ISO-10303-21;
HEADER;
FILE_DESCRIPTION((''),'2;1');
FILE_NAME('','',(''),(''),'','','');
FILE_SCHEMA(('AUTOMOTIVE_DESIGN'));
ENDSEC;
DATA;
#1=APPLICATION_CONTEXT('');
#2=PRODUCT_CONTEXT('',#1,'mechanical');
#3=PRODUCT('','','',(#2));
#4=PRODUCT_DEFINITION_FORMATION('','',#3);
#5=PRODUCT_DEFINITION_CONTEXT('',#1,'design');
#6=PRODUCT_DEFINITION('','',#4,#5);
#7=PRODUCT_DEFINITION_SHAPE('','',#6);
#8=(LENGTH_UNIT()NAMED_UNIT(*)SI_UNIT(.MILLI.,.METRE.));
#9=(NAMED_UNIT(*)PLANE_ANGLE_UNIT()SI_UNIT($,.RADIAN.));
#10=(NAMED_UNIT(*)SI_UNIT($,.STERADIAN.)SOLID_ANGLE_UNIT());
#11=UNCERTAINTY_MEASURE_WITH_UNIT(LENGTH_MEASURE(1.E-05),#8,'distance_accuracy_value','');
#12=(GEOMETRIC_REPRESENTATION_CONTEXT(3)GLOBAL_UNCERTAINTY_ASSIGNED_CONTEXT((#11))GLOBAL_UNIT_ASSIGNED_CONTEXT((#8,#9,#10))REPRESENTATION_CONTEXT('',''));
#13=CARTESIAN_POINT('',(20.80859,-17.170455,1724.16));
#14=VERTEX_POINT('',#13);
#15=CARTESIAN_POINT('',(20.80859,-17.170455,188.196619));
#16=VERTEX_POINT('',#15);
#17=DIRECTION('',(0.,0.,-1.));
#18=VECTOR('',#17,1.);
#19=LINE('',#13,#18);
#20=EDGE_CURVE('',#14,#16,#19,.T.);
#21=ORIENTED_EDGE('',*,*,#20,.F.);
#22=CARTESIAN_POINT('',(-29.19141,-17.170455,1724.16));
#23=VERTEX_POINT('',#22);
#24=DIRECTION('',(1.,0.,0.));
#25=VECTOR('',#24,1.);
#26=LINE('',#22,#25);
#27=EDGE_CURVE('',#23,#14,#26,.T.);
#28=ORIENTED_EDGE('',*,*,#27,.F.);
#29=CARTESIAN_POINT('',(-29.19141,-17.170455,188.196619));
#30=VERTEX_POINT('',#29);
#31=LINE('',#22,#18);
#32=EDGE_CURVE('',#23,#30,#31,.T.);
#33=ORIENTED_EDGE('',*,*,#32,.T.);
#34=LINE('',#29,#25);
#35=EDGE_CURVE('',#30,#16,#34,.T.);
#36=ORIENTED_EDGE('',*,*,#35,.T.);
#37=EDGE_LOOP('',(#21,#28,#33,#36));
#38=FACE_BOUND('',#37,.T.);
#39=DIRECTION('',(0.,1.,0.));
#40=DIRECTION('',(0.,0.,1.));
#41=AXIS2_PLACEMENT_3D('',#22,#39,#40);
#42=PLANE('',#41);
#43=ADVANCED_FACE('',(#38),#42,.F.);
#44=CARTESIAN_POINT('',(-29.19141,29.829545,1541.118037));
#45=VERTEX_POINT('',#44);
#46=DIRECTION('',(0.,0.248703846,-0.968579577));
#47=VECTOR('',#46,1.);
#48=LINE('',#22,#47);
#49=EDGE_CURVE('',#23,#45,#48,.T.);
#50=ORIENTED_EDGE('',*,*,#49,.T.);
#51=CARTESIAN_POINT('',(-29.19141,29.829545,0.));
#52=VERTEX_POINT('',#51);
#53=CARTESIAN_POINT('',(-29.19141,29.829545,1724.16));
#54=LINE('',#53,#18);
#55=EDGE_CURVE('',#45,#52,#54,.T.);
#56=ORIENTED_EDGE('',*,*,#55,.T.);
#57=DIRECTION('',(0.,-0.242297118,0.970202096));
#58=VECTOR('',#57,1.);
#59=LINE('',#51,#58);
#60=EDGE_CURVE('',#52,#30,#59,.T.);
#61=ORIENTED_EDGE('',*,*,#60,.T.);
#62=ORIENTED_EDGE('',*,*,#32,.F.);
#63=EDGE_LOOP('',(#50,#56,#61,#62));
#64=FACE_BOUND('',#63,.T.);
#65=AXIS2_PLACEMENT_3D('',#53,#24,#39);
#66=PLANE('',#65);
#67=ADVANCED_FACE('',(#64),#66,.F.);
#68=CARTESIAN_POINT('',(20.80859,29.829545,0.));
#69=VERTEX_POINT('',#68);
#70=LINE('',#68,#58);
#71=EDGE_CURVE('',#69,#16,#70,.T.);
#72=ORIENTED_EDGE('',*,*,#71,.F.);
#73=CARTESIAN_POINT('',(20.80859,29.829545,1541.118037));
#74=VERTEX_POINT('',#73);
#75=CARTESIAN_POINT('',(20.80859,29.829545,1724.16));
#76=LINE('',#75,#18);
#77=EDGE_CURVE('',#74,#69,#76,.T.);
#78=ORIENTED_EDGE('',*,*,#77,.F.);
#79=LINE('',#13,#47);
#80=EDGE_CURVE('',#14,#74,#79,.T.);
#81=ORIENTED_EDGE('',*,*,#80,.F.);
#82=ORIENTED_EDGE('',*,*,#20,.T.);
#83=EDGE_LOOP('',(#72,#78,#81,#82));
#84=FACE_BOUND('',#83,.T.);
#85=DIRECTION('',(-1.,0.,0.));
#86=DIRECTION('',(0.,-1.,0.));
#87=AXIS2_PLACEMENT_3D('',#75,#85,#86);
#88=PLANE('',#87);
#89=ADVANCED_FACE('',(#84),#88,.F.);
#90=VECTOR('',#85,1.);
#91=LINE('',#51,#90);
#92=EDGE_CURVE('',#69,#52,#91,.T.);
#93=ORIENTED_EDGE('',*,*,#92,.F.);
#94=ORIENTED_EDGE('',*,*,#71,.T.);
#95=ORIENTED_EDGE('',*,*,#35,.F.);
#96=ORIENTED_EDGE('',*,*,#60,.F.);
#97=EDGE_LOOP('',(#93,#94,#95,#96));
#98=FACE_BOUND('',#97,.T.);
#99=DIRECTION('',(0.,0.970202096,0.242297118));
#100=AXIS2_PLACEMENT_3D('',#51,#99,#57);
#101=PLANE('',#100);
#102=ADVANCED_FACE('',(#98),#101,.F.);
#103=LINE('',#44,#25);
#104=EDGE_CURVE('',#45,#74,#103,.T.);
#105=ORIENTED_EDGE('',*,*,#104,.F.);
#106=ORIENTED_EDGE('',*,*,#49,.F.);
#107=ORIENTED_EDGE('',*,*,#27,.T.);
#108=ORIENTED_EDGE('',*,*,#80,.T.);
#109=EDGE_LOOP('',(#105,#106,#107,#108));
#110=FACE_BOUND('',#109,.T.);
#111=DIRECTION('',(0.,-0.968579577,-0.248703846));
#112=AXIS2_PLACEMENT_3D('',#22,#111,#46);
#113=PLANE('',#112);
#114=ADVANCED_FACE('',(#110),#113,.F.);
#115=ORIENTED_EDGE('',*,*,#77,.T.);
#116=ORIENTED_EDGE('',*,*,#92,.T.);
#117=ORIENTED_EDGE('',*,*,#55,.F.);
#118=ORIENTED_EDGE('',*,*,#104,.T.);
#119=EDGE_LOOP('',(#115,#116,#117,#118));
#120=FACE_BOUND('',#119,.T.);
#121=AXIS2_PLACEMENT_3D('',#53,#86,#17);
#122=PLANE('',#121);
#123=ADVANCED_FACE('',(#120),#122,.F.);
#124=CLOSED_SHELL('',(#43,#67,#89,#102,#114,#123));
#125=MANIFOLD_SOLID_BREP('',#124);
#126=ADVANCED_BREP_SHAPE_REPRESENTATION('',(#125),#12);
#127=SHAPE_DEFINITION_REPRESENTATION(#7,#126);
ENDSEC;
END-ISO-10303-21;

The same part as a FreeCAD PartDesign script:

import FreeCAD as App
import Part
import Sketcher

V = App.Vector


def add_polygon(sketch, points):
    """Adds a closed chain of lines whose ends are joined by coincident constraints."""
    first, n = sketch.GeometryCount, len(points)
    for a, b in zip(points, points[1:] + points[:1]):
        sketch.addGeometry(Part.LineSegment(App.Vector(*a, 0), App.Vector(*b, 0)), False)
    for i in range(n):
        sketch.addConstraint(Sketcher.Constraint("Coincident", first + i, 2, first + (i + 1) % n, 1))

doc = App.newDocument("Part")
body = doc.addObject("PartDesign::Body", "Body")

sketch1 = doc.addObject("Sketcher::SketchObject", "Sketch")
body.addObject(sketch1)
sketch1.AttachmentSupport = (doc.XY_Plane, [""])
sketch1.MapMode = "FlatFace"
add_polygon(sketch1, [(-29.19141, 29.829545), (-29.19141, -17.170455), (20.80859, -17.170455), (20.80859, 29.829545)])
sketch1.addConstraint(Sketcher.Constraint("Vertical", 0))
sketch1.addConstraint(Sketcher.Constraint("Horizontal", 1))
sketch1.addConstraint(Sketcher.Constraint("Vertical", 2))
sketch1.addConstraint(Sketcher.Constraint("Horizontal", 3))
sketch1.addConstraint(Sketcher.Constraint("DistanceX", 1, 1, 1, 2, 50.0))
sketch1.addConstraint(Sketcher.Constraint("DistanceY", 0, 2, 0, 1, 47.0))
sketch1.addConstraint(Sketcher.Constraint("DistanceX", 0, 2, -1, 1, 29.19141))
sketch1.addConstraint(Sketcher.Constraint("DistanceY", 0, 2, -1, 1, 17.170455))
pad1 = doc.addObject("PartDesign::Pad", "Pad")
body.addObject(pad1)
pad1.Profile = sketch1
pad1.Length = 1724.16

sketch2 = doc.addObject("Sketcher::SketchObject", "Sketch001")
body.addObject(sketch2)
sketch2.AttachmentSupport = (doc.YZ_Plane, [""])
sketch2.MapMode = "FlatFace"
sketch2.AttachmentOffset = App.Placement(V(0, 0, 20.80859), App.Rotation())
add_polygon(sketch2, [(-17.170455, 1724.16), (29.829545, 1541.118037), (29.829545, 1724.16)])
add_polygon(sketch2, [(-17.170455, 0), (29.829545, 0), (-17.170455, 188.196619)])
sketch2.addConstraint(Sketcher.Constraint("Vertical", 1))
sketch2.addConstraint(Sketcher.Constraint("Horizontal", 2))
sketch2.addConstraint(Sketcher.Constraint("Horizontal", 3))
sketch2.addConstraint(Sketcher.Constraint("Vertical", 5))
sketch2.addConstraint(Sketcher.Constraint("PointOnObject", 3, 2, -1))
sketch2.addConstraint(Sketcher.Constraint("Vertical", 1, 2, 3, 2))
sketch2.addConstraint(Sketcher.Constraint("Vertical", 2, 2, 4, 2))
sketch2.addConstraint(Sketcher.Constraint("DistanceX", 2, 2, 2, 1, 47.0))
sketch2.addConstraint(Sketcher.Constraint("DistanceY", -1, 1, 1, 2, 1724.16))
sketch2.addConstraint(Sketcher.Constraint("DistanceY", 5, 2, 5, 1, 188.196619))
sketch2.addConstraint(Sketcher.Constraint("DistanceY", 1, 1, 1, 2, 183.041963))
sketch2.addConstraint(Sketcher.Constraint("DistanceX", -1, 1, 0, 2, 29.829545))
pocket1 = doc.addObject("PartDesign::Pocket", "Pocket")
body.addObject(pocket1)
pocket1.Profile = sketch2
pocket1.Length = 50

doc.recompute()
